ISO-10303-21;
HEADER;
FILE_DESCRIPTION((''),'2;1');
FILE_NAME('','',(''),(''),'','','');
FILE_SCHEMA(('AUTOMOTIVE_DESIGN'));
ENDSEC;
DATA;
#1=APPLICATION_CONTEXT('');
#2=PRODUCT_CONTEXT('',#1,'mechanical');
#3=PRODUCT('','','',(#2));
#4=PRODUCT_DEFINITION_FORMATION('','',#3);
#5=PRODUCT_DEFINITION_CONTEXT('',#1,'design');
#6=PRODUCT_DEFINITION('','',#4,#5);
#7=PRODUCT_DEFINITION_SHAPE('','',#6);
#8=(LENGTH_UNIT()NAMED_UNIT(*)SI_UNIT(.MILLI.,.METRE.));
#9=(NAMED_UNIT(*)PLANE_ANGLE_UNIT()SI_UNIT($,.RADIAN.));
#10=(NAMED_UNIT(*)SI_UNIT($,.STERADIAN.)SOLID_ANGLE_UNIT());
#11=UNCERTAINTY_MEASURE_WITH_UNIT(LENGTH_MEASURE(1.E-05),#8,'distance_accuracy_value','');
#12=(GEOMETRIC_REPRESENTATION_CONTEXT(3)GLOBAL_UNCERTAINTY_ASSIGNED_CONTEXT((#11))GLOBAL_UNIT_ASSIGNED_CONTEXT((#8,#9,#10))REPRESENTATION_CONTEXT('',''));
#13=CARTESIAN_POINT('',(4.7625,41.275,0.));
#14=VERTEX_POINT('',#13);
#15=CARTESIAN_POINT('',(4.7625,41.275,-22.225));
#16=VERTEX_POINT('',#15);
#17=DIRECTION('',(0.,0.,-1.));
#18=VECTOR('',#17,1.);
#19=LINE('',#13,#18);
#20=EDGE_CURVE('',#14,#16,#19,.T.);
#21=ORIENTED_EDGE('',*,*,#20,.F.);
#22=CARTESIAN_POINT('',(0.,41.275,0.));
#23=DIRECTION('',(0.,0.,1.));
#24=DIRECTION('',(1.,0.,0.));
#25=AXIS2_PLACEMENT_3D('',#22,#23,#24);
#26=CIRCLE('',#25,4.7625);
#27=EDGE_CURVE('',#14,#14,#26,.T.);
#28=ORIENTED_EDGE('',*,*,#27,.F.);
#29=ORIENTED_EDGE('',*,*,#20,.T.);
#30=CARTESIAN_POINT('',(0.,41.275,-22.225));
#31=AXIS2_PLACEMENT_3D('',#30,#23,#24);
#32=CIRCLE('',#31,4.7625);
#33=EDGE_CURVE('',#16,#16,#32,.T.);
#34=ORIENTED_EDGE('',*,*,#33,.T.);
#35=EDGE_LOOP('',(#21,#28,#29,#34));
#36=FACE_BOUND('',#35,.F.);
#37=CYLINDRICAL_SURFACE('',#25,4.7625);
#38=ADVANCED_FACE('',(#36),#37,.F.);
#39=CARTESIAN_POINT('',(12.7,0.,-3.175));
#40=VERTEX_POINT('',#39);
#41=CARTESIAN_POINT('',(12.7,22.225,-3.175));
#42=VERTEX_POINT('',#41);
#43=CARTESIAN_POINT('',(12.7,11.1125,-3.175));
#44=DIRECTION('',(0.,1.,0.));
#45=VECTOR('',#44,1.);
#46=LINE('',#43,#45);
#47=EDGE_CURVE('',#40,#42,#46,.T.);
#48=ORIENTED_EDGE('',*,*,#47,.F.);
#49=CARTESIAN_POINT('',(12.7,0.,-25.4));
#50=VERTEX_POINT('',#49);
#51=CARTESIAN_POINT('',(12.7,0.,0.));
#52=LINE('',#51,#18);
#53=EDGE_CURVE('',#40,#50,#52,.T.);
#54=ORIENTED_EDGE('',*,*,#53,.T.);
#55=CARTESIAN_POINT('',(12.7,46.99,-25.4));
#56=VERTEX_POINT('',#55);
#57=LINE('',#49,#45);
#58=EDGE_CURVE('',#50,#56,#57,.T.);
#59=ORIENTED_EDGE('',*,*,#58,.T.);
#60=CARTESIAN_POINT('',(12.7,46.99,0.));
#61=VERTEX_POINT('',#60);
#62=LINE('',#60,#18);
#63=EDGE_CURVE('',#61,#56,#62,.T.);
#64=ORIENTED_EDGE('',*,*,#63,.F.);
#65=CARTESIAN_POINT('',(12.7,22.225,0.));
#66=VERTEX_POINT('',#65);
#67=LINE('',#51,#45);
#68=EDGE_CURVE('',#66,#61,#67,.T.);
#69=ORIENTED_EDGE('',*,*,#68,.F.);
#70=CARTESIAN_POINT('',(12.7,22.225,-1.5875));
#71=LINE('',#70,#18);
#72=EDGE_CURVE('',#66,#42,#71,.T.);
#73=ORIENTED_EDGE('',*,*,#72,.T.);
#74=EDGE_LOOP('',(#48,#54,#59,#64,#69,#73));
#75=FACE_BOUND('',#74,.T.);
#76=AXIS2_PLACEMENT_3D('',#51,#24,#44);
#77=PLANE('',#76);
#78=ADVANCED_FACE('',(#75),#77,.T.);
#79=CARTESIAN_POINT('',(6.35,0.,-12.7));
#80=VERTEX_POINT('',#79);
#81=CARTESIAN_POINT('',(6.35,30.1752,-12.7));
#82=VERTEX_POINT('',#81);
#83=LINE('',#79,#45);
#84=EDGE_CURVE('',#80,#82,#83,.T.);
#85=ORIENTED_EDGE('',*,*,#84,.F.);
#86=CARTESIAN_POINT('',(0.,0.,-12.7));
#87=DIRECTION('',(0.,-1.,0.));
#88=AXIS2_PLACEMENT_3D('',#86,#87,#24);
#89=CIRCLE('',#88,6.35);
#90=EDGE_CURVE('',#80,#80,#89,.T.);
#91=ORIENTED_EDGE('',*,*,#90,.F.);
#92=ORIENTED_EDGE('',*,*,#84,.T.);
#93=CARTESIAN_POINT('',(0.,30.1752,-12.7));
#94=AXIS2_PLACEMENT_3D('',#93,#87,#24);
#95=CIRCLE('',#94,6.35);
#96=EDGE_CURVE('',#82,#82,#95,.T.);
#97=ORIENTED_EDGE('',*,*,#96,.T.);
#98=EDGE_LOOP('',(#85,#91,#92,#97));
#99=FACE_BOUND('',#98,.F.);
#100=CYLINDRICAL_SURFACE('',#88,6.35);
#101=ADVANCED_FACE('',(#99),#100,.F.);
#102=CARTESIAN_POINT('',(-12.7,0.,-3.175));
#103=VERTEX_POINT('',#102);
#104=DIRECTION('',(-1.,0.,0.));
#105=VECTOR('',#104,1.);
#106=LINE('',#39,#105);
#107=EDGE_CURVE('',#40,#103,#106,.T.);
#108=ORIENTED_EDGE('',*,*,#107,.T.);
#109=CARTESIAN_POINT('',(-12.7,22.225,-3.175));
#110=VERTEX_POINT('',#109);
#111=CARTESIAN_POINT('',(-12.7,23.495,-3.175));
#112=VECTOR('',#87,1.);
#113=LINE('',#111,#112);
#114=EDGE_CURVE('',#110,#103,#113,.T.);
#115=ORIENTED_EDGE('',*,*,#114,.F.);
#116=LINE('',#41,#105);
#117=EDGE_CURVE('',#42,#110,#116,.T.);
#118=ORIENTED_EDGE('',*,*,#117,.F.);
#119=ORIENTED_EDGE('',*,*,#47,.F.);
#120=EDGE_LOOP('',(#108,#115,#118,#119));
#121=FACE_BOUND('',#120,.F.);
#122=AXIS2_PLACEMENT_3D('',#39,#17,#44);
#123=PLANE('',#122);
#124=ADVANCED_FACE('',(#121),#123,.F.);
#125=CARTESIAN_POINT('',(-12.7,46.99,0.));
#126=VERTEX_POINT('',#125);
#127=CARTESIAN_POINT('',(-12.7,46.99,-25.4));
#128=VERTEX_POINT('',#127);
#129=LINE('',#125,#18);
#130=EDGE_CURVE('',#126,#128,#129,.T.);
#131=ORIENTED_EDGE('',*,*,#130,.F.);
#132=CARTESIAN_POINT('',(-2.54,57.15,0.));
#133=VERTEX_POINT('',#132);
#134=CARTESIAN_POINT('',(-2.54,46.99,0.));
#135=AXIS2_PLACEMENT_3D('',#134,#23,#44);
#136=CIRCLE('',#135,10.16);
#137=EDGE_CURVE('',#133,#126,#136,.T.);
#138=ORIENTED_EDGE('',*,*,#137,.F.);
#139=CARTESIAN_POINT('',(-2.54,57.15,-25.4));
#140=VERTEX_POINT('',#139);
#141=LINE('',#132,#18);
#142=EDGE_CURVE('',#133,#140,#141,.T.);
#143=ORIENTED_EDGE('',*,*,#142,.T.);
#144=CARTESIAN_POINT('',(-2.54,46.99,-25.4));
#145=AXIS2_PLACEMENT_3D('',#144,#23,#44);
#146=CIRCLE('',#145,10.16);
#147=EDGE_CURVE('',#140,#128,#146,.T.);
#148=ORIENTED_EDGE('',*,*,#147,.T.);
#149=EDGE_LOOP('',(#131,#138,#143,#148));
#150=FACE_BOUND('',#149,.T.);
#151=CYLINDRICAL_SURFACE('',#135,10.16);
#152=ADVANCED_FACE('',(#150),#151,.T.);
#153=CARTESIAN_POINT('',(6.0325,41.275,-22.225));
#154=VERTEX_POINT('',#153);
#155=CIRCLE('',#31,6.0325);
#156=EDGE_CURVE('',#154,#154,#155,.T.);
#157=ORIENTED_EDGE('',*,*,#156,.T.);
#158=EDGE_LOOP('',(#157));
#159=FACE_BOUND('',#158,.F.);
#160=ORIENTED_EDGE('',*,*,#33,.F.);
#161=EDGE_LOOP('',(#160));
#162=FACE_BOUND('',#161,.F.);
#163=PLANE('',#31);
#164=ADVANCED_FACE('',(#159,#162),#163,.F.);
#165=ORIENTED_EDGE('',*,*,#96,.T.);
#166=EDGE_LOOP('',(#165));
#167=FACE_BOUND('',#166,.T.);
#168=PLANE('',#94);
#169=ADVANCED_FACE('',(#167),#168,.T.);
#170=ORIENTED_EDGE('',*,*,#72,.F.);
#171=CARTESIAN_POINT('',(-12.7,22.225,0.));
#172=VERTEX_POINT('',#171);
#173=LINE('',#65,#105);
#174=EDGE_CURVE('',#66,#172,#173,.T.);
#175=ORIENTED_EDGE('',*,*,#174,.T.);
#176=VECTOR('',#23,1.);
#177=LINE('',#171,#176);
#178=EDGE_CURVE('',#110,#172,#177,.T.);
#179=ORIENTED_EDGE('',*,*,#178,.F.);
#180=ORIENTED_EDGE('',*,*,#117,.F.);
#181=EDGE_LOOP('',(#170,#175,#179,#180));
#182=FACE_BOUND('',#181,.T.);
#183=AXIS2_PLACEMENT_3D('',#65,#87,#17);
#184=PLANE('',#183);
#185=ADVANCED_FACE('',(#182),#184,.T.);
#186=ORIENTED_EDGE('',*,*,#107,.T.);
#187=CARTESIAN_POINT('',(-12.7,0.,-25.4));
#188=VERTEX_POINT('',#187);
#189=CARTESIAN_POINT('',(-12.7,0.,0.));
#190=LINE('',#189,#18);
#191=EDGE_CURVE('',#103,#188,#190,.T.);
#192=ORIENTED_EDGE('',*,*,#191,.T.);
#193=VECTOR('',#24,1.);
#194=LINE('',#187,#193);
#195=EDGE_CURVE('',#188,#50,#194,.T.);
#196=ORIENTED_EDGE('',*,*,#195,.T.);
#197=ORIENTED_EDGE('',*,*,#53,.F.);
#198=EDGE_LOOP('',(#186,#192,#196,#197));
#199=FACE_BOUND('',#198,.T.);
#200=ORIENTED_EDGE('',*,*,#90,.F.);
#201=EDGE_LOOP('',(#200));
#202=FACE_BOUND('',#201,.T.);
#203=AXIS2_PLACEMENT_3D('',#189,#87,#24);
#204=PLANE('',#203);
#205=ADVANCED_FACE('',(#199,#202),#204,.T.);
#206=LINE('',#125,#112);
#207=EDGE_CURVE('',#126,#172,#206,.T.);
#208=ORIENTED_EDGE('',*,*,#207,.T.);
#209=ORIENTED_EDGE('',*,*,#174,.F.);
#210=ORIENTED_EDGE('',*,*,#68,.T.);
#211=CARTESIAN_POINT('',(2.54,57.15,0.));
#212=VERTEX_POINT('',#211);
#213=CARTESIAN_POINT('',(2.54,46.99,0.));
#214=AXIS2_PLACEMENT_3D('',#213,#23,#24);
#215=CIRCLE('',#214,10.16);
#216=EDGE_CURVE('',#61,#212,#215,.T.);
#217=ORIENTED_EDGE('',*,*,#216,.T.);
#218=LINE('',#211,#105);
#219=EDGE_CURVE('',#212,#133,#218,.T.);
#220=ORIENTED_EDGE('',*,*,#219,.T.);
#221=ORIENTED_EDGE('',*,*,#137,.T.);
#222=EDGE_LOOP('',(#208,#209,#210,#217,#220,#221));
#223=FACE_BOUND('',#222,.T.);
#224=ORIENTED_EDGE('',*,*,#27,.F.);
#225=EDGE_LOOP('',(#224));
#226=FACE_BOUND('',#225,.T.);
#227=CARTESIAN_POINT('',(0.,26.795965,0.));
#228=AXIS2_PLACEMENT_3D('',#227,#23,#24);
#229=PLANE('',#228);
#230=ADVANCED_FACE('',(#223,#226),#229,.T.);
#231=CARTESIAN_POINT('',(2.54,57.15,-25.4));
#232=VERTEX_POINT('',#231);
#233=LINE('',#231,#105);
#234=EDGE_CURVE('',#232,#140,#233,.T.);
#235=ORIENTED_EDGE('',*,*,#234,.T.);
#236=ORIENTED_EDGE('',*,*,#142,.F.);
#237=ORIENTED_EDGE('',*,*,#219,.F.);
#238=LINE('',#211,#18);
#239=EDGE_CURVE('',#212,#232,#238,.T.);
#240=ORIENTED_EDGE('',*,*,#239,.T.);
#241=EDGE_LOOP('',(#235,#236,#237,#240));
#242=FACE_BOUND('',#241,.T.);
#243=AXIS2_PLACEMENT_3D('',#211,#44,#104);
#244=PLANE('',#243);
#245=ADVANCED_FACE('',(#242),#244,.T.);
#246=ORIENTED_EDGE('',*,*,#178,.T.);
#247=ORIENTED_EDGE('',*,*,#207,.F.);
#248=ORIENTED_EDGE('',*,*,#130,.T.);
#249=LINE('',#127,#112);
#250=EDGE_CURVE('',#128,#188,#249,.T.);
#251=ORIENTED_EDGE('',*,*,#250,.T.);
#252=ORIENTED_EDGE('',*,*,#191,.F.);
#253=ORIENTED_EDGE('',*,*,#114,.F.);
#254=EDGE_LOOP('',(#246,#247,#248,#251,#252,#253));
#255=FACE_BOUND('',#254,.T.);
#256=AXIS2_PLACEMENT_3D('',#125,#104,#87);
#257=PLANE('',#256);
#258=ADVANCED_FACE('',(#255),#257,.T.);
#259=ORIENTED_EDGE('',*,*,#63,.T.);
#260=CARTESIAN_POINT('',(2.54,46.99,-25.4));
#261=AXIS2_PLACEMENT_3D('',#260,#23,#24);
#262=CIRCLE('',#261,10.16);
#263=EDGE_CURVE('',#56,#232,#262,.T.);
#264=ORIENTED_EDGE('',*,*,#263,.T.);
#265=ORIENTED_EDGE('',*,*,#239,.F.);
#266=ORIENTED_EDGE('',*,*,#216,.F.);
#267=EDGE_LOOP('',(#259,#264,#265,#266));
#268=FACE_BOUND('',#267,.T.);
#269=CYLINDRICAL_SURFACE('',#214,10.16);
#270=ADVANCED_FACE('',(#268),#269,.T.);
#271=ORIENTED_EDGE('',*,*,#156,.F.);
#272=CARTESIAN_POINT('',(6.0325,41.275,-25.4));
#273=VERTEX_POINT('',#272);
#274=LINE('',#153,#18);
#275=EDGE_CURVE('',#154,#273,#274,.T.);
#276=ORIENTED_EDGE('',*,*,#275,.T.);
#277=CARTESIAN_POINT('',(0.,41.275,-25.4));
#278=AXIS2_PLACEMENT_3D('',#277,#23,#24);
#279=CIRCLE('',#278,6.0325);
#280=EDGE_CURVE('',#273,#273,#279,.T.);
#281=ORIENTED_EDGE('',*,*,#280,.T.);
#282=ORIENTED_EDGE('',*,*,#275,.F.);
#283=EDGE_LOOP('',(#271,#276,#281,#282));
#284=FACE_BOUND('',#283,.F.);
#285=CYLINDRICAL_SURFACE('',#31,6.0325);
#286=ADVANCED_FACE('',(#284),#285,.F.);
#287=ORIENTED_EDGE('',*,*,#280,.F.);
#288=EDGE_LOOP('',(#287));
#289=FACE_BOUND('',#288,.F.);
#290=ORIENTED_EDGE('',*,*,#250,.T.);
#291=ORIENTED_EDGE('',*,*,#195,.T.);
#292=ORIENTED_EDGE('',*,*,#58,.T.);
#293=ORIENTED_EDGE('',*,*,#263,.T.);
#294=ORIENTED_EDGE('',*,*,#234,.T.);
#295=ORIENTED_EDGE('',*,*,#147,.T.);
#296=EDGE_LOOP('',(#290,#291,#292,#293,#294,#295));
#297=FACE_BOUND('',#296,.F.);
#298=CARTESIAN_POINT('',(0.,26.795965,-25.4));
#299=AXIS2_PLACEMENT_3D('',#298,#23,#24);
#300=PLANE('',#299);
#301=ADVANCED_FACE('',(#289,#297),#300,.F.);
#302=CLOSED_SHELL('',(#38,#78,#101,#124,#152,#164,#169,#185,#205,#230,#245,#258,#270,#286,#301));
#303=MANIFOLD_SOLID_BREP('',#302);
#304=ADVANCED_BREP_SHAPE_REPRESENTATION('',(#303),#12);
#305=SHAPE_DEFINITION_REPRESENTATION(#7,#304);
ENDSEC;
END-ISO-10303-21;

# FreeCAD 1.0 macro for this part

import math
import FreeCAD as App
import Part
import Sketcher
Q = App.Units.Quantity


def add_polygon(sketch, points):
    """Adds a closed chain of lines whose ends are joined by coincident constraints."""
    first, n = sketch.GeometryCount, len(points)
    for a, b in zip(points, points[1:] + points[:1]):
        sketch.addGeometry(Part.LineSegment(App.Vector(*a, 0), App.Vector(*b, 0)), False)
    for i in range(n):
        sketch.addConstraint(Sketcher.Constraint("Coincident", first + i, 2, first + (i + 1) % n, 1))

doc = App.newDocument("Part")
body = doc.addObject("PartDesign::Body", "Body")

# Sketch on XY plane
sketch1 = doc.addObject("Sketcher::SketchObject", "Sketch")
body.addObject(sketch1)
sketch1.AttachmentSupport = (doc.XY_Plane, [""])
sketch1.MapMode = "FlatFace"
sketch1.addGeometry(Part.LineSegment(App.Vector(-13, 0, 0), App.Vector(13, 0, 0)), False)
sketch1.addGeometry(Part.LineSegment(App.Vector(13, 0, 0), App.Vector(13, 47, 0)), False)
sketch1.addGeometry(Part.ArcOfCircle(Part.Circle(App.Vector(3, 47, 0), App.Vector(0, 0, 1), 10), math.radians(0), math.radians(90)), False)
sketch1.addGeometry(Part.LineSegment(App.Vector(3, 57, 0), App.Vector(-3, 57, 0)), False)
sketch1.addGeometry(Part.ArcOfCircle(Part.Circle(App.Vector(-3, 47, 0), App.Vector(0, 0, 1), 10), math.radians(90), math.radians(180)), False)
sketch1.addGeometry(Part.LineSegment(App.Vector(-13, 47, 0), App.Vector(-13, 0, 0)), False)
sketch1.addConstraint(Sketcher.Constraint("Coincident", 0, 2, 1, 1))
sketch1.addConstraint(Sketcher.Constraint("Tangent", 1, 2, 2, 1))
sketch1.addConstraint(Sketcher.Constraint("Tangent", 2, 2, 3, 1))
sketch1.addConstraint(Sketcher.Constraint("Tangent", 3, 2, 4, 1))
sketch1.addConstraint(Sketcher.Constraint("Tangent", 4, 2, 5, 1))
sketch1.addConstraint(Sketcher.Constraint("Coincident", 5, 2, 0, 1))
sketch1.addConstraint(Sketcher.Constraint("Horizontal", 0))
sketch1.addConstraint(Sketcher.Constraint("Vertical", 1))
sketch1.addConstraint(Sketcher.Constraint("Horizontal", 3))
sketch1.addConstraint(Sketcher.Constraint("Vertical", 5))
sketch1.addConstraint(Sketcher.Constraint("Equal", 2, 4))
sketch1.addConstraint(Sketcher.Constraint("Symmetric", 0, 2, 5, 2, -1, 1))
sketch1.addConstraint(Sketcher.Constraint("Radius", 2, Q("0.4 in")))
sketch1.addConstraint(Sketcher.Constraint("DistanceX", 0, 1, 0, 2, Q("1 in")))
sketch1.addConstraint(Sketcher.Constraint("DistanceY", 1, 1, 1, 2, Q("1.85 in")))
pad1 = doc.addObject("PartDesign::Pad", "Pad")
body.addObject(pad1)
pad1.Profile = sketch1
pad1.Length = Q("1 in")
pad1.Reversed = True

# Sketch on XY plane
sketch2 = doc.addObject("Sketcher::SketchObject", "Sketch001")
body.addObject(sketch2)
sketch2.AttachmentSupport = (doc.XY_Plane, [""])
sketch2.MapMode = "FlatFace"
sketch2.addGeometry(Part.Circle(App.Vector(0, 41.3, 0), App.Vector(0, 0, 1), 4.8), False)
sketch2.addConstraint(Sketcher.Constraint("PointOnObject", 0, 3, -2))
sketch2.addConstraint(Sketcher.Constraint("Diameter", 0, Q("0.375 in")))
sketch2.addConstraint(Sketcher.Constraint("DistanceY", -1, 1, 0, 3, Q("1.625 in")))
pocket1 = doc.addObject("PartDesign::Pocket", "Pocket")
body.addObject(pocket1)
pocket1.Profile = sketch2
pocket1.Length = Q("0.875 in")

# Sketch on XY plane
sketch3 = doc.addObject("Sketcher::SketchObject", "Sketch002")
body.addObject(sketch3)
sketch3.AttachmentSupport = (doc.XY_Plane, [""])
sketch3.MapMode = "FlatFace"
sketch3.AttachmentOffset = App.Placement(App.Vector(0, 0, -0.875 * 25.4), App.Rotation())
sketch3.addGeometry(Part.Circle(App.Vector(0, 41, 0), App.Vector(0, 0, 1), 6), False)
sketch3.addConstraint(Sketcher.Constraint("PointOnObject", 0, 3, -2))
sketch3.addConstraint(Sketcher.Constraint("Diameter", 0, Q("0.475 in")))
sketch3.addConstraint(Sketcher.Constraint("DistanceY", -1, 1, 0, 3, Q("1.625 in")))
pocket2 = doc.addObject("PartDesign::Pocket", "Pocket001")
body.addObject(pocket2)
pocket2.Profile = sketch3
pocket2.Type = "ThroughAll"

# Sketch on YZ plane
sketch4 = doc.addObject("Sketcher::SketchObject", "Sketch003")
body.addObject(sketch4)
sketch4.AttachmentSupport = (doc.YZ_Plane, [""])
sketch4.MapMode = "FlatFace"
sketch4.AttachmentOffset = App.Placement(App.Vector(0, 0, 0.5 * 25.4), App.Rotation())
add_polygon(sketch4, [(22.2, 0), (0, 0), (0, -3.2), (22.2, -3.2)])  # lines 0-3
sketch4.addConstraint(Sketcher.Constraint("Horizontal", 0))
sketch4.addConstraint(Sketcher.Constraint("Vertical", 1))
sketch4.addConstraint(Sketcher.Constraint("Horizontal", 2))
sketch4.addConstraint(Sketcher.Constraint("Vertical", 3))
sketch4.addConstraint(Sketcher.Constraint("Coincident", 0, 2, -1, 1))
sketch4.addConstraint(Sketcher.Constraint("DistanceX", 0, 2, 0, 1, Q("0.875 in")))
sketch4.addConstraint(Sketcher.Constraint("DistanceY", 1, 2, 1, 1, Q("0.125 in")))
pocket3 = doc.addObject("PartDesign::Pocket", "Pocket002")
body.addObject(pocket3)
pocket3.Profile = sketch4
pocket3.Type = "ThroughAll"

# Sketch on XZ plane
sketch5 = doc.addObject("Sketcher::SketchObject", "Sketch004")
body.addObject(sketch5)
sketch5.AttachmentSupport = (doc.XZ_Plane, [""])
sketch5.MapMode = "FlatFace"
sketch5.addGeometry(Part.Circle(App.Vector(0, -13, 0), App.Vector(0, 0, 1), 6), False)
sketch5.addConstraint(Sketcher.Constraint("PointOnObject", 0, 3, -2))
sketch5.addConstraint(Sketcher.Constraint("Diameter", 0, Q("0.5 in")))
sketch5.addConstraint(Sketcher.Constraint("DistanceY", 0, 3, -1, 1, Q("0.5 in")))
pocket4 = doc.addObject("PartDesign::Pocket", "Pocket003")
body.addObject(pocket4)
pocket4.Profile = sketch5
pocket4.Length = Q("1.188 in")

doc.recompute()
